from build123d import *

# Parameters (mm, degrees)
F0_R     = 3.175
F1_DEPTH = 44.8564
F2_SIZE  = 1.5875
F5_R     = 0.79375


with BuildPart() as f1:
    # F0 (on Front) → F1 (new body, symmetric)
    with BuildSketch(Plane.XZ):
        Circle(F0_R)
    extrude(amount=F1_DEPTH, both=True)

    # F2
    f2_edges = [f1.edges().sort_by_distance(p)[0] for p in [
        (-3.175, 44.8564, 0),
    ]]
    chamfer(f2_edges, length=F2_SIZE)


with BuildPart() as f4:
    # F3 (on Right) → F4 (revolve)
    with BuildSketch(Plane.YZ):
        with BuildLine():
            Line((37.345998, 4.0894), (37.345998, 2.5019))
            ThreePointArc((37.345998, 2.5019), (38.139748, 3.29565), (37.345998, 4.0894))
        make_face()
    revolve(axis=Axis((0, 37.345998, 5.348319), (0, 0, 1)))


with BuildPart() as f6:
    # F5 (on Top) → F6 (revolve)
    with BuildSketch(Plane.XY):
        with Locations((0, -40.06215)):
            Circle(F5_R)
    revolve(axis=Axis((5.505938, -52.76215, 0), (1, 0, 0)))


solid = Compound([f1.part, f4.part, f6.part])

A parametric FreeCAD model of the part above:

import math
import FreeCAD as App
import Part
import Sketcher

V = App.Vector
Q = App.Units.Quantity


def edges_at(feature, points):
    """Names of the edges that pass closest to the given points."""
    edges = feature.Shape.Edges
    near = lambda p: min(range(len(edges)), key=lambda i: edges[i].distToShape(Part.Vertex(*p))[0])
    return sorted({f"Edge{near(p) + 1}" for p in points})

doc = App.newDocument("Part")
body = doc.addObject("PartDesign::Body", "Body")

sketch1 = body.newObject("Sketcher::SketchObject", "Sketch")
sketch1.AttachmentSupport = (doc.getObject("XZ_Plane"), [""])
sketch1.MapMode = "FlatFace"
sketch1.addGeometry(Part.Circle(V(0, 0, 0), V(0, 0, 1), 3.2), False)
sketch1.addConstraint(Sketcher.Constraint("Coincident", 0, 3, -1, 1))
sketch1.addConstraint(Sketcher.Constraint("Diameter", 0, Q("0.25 in")))
pad1 = body.newObject("PartDesign::Pad", "Pad")
pad1.Profile = sketch1
pad1.Length = Q("3.532 in")
pad1.Midplane = True
doc.recompute()

chamfer = body.newObject("PartDesign::Chamfer", "Chamfer")
chamfer.Base = (pad1, edges_at(pad1, [(-3.175, 44.856, 0)]))
chamfer.Size = Q("0.0625 in")
body2 = doc.addObject("PartDesign::Body", "Body001")

sketch2 = body2.newObject("Sketcher::SketchObject", "Sketch001")
sketch2.AttachmentSupport = (doc.getObject("YZ_Plane001"), [""])
sketch2.MapMode = "FlatFace"
sketch2.addGeometry(Part.LineSegment(V(37.3, 4.1, 0), V(37.3, 2.5, 0)), False)
sketch2.addGeometry(Part.ArcOfCircle(Part.Circle(V(37.3, 3.3, 0), V(0, 0, 1), 0.8), math.radians(-90), math.radians(90)), False)
sketch2.addGeometry(Part.LineSegment(V(37.3, 2.5, 0), V(37.3, 4.1, 0)), True)
sketch2.addConstraint(Sketcher.Constraint("Coincident", 0, 1, 1, 2))
sketch2.addConstraint(Sketcher.Constraint("Coincident", 1, 1, 0, 2))
sketch2.addConstraint(Sketcher.Constraint("Vertical", 0))
sketch2.addConstraint(Sketcher.Constraint("Vertical", 2))
sketch2.addConstraint(Sketcher.Constraint("Coincident", 2, 1, 1, 1))
sketch2.addConstraint(Sketcher.Constraint("Vertical", 1, 3, 0, 1))
sketch2.addConstraint(Sketcher.Constraint("Equal", 0, 2))
sketch2.addConstraint(Sketcher.Constraint("Radius", 1, Q("0.03125 in")))
sketch2.addConstraint(Sketcher.Constraint("DistanceY", -1, 1, 0, 1, Q("0.161 in")))
sketch2.addConstraint(Sketcher.Constraint("DistanceX", -1, 1, 1, 3, 37.345998))
revolution = body2.newObject("PartDesign::Revolution", "Revolution")
revolution.Profile = sketch2
revolution.ReferenceAxis = (sketch2, ["Axis0"])
revolution.Angle = 360
body3 = doc.addObject("PartDesign::Body", "Body002")

sketch3 = body3.newObject("Sketcher::SketchObject", "Sketch002")
sketch3.AttachmentSupport = (doc.getObject("XY_Plane002"), [""])
sketch3.MapMode = "FlatFace"
sketch3.addGeometry(Part.Circle(V(0, -40.1, 0), V(0, 0, 1), 0.8), False)
sketch3.addGeometry(Part.LineSegment(V(0, -52.8, 0), V(10, -52.8, 0)), True)
sketch3.addConstraint(Sketcher.Constraint("Horizontal", 1))
sketch3.addConstraint(Sketcher.Constraint("PointOnObject", 0, 3, -2))
sketch3.addConstraint(Sketcher.Constraint("PointOnObject", 1, 1, -2))
sketch3.addConstraint(Sketcher.Constraint("Diameter", 0, Q("0.0625 in")))
sketch3.addConstraint(Sketcher.Constraint("DistanceY", 1, 1, 0, 3, Q("0.5 in")))
sketch3.addConstraint(Sketcher.Constraint("DistanceX", 1, 1, 1, 2, 10.0))
sketch3.addConstraint(Sketcher.Constraint("DistanceY", 0, 3, -1, 1, 40.06215))
revolution2 = body3.newObject("PartDesign::Revolution", "Revolution001")
revolution2.Profile = sketch3
revolution2.ReferenceAxis = (sketch3, ["Axis0"])
revolution2.Angle = 360

doc.recompute()
